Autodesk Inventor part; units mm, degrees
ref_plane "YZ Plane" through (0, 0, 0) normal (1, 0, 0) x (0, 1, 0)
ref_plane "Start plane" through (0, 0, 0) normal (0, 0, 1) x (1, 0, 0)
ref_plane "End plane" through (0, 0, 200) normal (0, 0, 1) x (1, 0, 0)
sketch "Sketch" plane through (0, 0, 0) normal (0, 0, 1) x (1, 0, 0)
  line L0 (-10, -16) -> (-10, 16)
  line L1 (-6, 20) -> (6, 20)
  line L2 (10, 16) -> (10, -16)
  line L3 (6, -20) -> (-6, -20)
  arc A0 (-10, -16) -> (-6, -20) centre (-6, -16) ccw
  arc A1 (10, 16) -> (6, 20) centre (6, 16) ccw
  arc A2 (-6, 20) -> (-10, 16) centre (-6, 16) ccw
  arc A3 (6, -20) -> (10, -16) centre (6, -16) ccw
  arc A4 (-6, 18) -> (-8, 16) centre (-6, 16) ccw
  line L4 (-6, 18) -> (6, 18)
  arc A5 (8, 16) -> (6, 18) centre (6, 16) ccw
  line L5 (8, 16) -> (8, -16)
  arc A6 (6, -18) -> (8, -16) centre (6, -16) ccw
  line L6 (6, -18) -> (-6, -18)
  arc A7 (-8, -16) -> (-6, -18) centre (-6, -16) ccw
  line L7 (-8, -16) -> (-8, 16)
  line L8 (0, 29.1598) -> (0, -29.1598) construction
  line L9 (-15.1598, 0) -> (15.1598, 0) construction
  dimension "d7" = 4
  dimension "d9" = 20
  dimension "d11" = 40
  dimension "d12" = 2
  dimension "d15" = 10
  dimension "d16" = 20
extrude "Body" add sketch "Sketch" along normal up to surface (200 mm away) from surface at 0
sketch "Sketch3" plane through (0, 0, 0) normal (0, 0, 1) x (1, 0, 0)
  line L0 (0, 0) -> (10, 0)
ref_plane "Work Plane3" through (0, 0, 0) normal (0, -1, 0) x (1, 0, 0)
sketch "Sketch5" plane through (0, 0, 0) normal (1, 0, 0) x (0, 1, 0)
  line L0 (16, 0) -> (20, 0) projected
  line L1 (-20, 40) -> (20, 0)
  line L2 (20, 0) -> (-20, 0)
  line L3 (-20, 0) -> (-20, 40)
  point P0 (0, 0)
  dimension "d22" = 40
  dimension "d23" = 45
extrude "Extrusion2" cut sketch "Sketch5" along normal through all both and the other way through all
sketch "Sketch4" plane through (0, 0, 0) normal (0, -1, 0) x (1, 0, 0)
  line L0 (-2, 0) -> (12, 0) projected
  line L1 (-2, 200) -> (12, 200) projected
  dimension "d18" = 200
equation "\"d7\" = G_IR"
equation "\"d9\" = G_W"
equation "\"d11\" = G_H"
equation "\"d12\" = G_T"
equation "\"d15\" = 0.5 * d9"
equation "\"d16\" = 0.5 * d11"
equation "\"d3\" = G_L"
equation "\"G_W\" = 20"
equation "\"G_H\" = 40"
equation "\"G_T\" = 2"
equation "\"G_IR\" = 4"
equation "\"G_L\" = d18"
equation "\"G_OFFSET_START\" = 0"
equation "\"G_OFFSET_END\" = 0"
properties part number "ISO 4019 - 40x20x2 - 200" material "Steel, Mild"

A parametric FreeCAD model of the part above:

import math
import FreeCAD as App
import Part
import Sketcher
from FreeCAD import Vector
Q = App.Units.Quantity

doc = App.newDocument("Part")
body = doc.addObject("PartDesign::Body", "Body")

sketch1 = doc.addObject("Sketcher::SketchObject", "Sketch")
body.addObject(sketch1)
sketch1.AttachmentSupport = (doc.XY_Plane, [""])
sketch1.MapMode = "FlatFace"
sketch1.addGeometry([
    Part.LineSegment(Vector(-10, 16, 0), Vector(-10, -16, 0)),
    Part.ArcOfCircle(Part.Circle(Vector(-6, -16, 0), Vector(0, 0, 1), 4), math.radians(180), math.radians(270)),
    Part.LineSegment(Vector(-6, -20, 0), Vector(6, -20, 0)),
    Part.ArcOfCircle(Part.Circle(Vector(6, -16, 0), Vector(0, 0, 1), 4), math.radians(-90), math.radians(0)),
    Part.LineSegment(Vector(10, -16, 0), Vector(10, 16, 0)),
    Part.ArcOfCircle(Part.Circle(Vector(6, 16, 0), Vector(0, 0, 1), 4), math.radians(0), math.radians(90)),
    Part.LineSegment(Vector(6, 20, 0), Vector(-6, 20, 0)),
    Part.ArcOfCircle(Part.Circle(Vector(-6, 16, 0), Vector(0, 0, 1), 4), math.radians(90), math.radians(180)),
    Part.ArcOfCircle(Part.Circle(Vector(-6, 16, 0), Vector(0, 0, 1), 2), math.radians(90), math.radians(180)),
    Part.LineSegment(Vector(-6, 18, 0), Vector(6, 18, 0)),
    Part.ArcOfCircle(Part.Circle(Vector(6, 16, 0), Vector(0, 0, 1), 2), math.radians(0), math.radians(90)),
    Part.LineSegment(Vector(8, 16, 0), Vector(8, -16, 0)),
    Part.ArcOfCircle(Part.Circle(Vector(6, -16, 0), Vector(0, 0, 1), 2), math.radians(-90), math.radians(0)),
    Part.LineSegment(Vector(6, -18, 0), Vector(-6, -18, 0)),
    Part.ArcOfCircle(Part.Circle(Vector(-6, -16, 0), Vector(0, 0, 1), 2), math.radians(180), math.radians(270)),
    Part.LineSegment(Vector(-8, -16, 0), Vector(-8, 16, 0)),
], False)
sketch1.addConstraint([
    Sketcher.Constraint("Tangent", 0, 2, 1, 1),
    Sketcher.Constraint("Tangent", 1, 2, 2, 1),
    Sketcher.Constraint("Tangent", 2, 2, 3, 1),
    Sketcher.Constraint("Tangent", 3, 2, 4, 1),
    Sketcher.Constraint("Tangent", 4, 2, 5, 1),
    Sketcher.Constraint("Tangent", 5, 2, 6, 1),
    Sketcher.Constraint("Tangent", 6, 2, 7, 1),
    Sketcher.Constraint("Tangent", 7, 2, 0, 1),
    Sketcher.Constraint("Tangent", 8, 1, 9, 1),
    Sketcher.Constraint("Tangent", 9, 2, 10, 2),
    Sketcher.Constraint("Tangent", 10, 1, 11, 1),
    Sketcher.Constraint("Tangent", 11, 2, 12, 2),
    Sketcher.Constraint("Tangent", 12, 1, 13, 1),
    Sketcher.Constraint("Tangent", 13, 2, 14, 2),
    Sketcher.Constraint("Tangent", 14, 1, 15, 1),
    Sketcher.Constraint("Tangent", 15, 2, 8, 2),
    Sketcher.Constraint("Vertical", 0),
    Sketcher.Constraint("Horizontal", 2),
    Sketcher.Constraint("Vertical", 4),
    Sketcher.Constraint("Horizontal", 6),
    Sketcher.Constraint("Horizontal", 9),
    Sketcher.Constraint("Vertical", 11),
    Sketcher.Constraint("Horizontal", 13),
    Sketcher.Constraint("Vertical", 15),
    Sketcher.Constraint("Coincident", 8, 3, 7, 3),
    Sketcher.Constraint("Coincident", 10, 3, 5, 3),
    Sketcher.Constraint("Coincident", 12, 3, 3, 3),
    Sketcher.Constraint("Equal", 1, 3),
    Sketcher.Constraint("Equal", 3, 5),
    Sketcher.Constraint("Equal", 5, 7),
    Sketcher.Constraint("Equal", 12, 14),
    Sketcher.Constraint("Symmetric", 1, 3, 5, 3, -1, 1),
    Sketcher.Constraint("Radius", 1, Q("4 mm")),
    Sketcher.Constraint("Radius", 8, Q("2 mm")),
    Sketcher.Constraint("DistanceX", 0, 2, -1, 1, Q("10 mm")),
    Sketcher.Constraint("DistanceY", 1, 2, -1, 1, Q("20 mm")),
])
pad1 = doc.addObject("PartDesign::Pad", "Pad")
body.addObject(pad1)
pad1.Profile = sketch1
pad1.Length = 200

sketch2 = doc.addObject("Sketcher::SketchObject", "Sketch001")
body.addObject(sketch2)
sketch2.AttachmentSupport = (doc.YZ_Plane, [""])
sketch2.MapMode = "FlatFace"
sketch2.addGeometry([
    Part.LineSegment(Vector(-20, 0, 0), Vector(20, 0, 0)),
    Part.LineSegment(Vector(20, 0, 0), Vector(-20, 40, 0)),
    Part.LineSegment(Vector(-20, 40, 0), Vector(-20, 0, 0)),
], False)
sketch2.addConstraint([
    Sketcher.Constraint("Coincident", 0, 2, 1, 1),
    Sketcher.Constraint("Coincident", 1, 2, 2, 1),
    Sketcher.Constraint("Coincident", 2, 2, 0, 1),
    Sketcher.Constraint("Horizontal", 0),
    Sketcher.Constraint("Vertical", 2),
    Sketcher.Constraint("Symmetric", 0, 2, 2, 2, -1, 1),
    Sketcher.Constraint("Equal", 0, 2),
    Sketcher.Constraint("DistanceX", 0, 1, 0, 2, Q("40 mm")),
])
pocket1 = doc.addObject("PartDesign::Pocket", "Pocket")
body.addObject(pocket1)
pocket1.Profile = sketch2
pocket1.Type = "ThroughAll"
pocket1.Midplane = True

doc.recompute()
